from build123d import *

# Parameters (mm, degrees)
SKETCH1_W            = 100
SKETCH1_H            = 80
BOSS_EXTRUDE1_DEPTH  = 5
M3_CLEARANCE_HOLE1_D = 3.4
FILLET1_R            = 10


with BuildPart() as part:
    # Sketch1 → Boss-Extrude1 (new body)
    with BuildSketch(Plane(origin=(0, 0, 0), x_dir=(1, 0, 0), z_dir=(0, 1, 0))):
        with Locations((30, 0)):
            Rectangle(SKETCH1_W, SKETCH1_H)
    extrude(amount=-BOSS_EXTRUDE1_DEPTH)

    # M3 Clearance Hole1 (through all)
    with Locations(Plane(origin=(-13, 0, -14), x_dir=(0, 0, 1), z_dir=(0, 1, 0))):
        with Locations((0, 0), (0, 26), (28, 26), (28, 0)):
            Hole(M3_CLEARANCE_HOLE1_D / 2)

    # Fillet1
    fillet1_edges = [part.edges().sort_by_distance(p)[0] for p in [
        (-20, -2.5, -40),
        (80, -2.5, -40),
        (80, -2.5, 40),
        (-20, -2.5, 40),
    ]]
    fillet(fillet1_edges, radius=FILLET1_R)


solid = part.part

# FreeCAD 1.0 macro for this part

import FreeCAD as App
import Part
import Sketcher
Q = App.Units.Quantity


def edges_at(feature, points):
    """Names of the edges that pass closest to the given points."""
    edges = feature.Shape.Edges
    near = lambda p: min(range(len(edges)), key=lambda i: edges[i].distToShape(Part.Vertex(*p))[0])
    return sorted({f"Edge{near(p) + 1}" for p in points})

doc = App.newDocument("Part")
body = doc.addObject("PartDesign::Body", "Body")

# Sketch on XZ plane
sketch1 = body.newObject("Sketcher::SketchObject", "Sketch")
sketch1.AttachmentSupport = (doc.getObject("XZ_Plane"), [""])
sketch1.MapMode = "FlatFace"
sketch1.addGeometry([
    Part.LineSegment(App.Vector(-20, -40, 0), App.Vector(-20, 40, 0)),
    Part.LineSegment(App.Vector(-20, 40, 0), App.Vector(80, 40, 0)),
    Part.LineSegment(App.Vector(80, 40, 0), App.Vector(80, -40, 0)),
    Part.LineSegment(App.Vector(80, -40, 0), App.Vector(-20, -40, 0)),
], False)
sketch1.addConstraint([
    Sketcher.Constraint("Coincident", 0, 2, 1, 1),
    Sketcher.Constraint("Coincident", 1, 2, 2, 1),
    Sketcher.Constraint("Coincident", 2, 2, 3, 1),
    Sketcher.Constraint("Coincident", 3, 2, 0, 1),
    Sketcher.Constraint("Vertical", 0),
    Sketcher.Constraint("Horizontal", 1),
    Sketcher.Constraint("Vertical", 2),
    Sketcher.Constraint("Horizontal", 3),
    Sketcher.Constraint("DistanceX", 1, 1, 1, 2, Q("100 mm")),
    Sketcher.Constraint("DistanceY", 0, 1, 0, 2, Q("80 mm")),
    Sketcher.Constraint("DistanceX", 0, 2, -1, 1, Q("20 mm")),
    Sketcher.Constraint("DistanceY", -1, 1, 0, 2, Q("40 mm")),
])
pad1 = body.newObject("PartDesign::Pad", "Pad")
pad1.Profile = sketch1
pad1.Length = 5

# Sketch on XZ plane
sketch2 = body.newObject("Sketcher::SketchObject", "Sketch001")
sketch2.AttachmentSupport = (doc.getObject("XZ_Plane"), [""])
sketch2.MapMode = "FlatFace"
sketch2.addGeometry([
    Part.Circle(App.Vector(-13, -14, 0), App.Vector(0, 0, 1), 1.7),
    Part.Circle(App.Vector(13, -14, 0), App.Vector(0, 0, 1), 1.7),
    Part.Circle(App.Vector(13, 14, 0), App.Vector(0, 0, 1), 1.7),
    Part.Circle(App.Vector(-13, 14, 0), App.Vector(0, 0, 1), 1.7),
], False)
sketch2.addConstraint([
    Sketcher.Constraint("Equal", 0, 1),
    Sketcher.Constraint("Equal", 1, 2),
    Sketcher.Constraint("Equal", 2, 3),
    Sketcher.Constraint("Symmetric", 0, 3, 2, 3, -1, 1),
    Sketcher.Constraint("Symmetric", 1, 3, 3, 3, -1, 1),
    Sketcher.Constraint("Symmetric", 0, 3, 1, 3, -2),
    Sketcher.Constraint("Diameter", 0, Q("3.4 mm")),
    Sketcher.Constraint("DistanceX", 0, 3, -1, 1, Q("13 mm")),
    Sketcher.Constraint("DistanceY", 0, 3, -1, 1, Q("14 mm")),
])
doc.recompute()
hole = body.newObject("PartDesign::Hole", "Hole")
hole.Profile = sketch2
hole.ThreadType = "None"
hole.Diameter = 3.4
hole.DepthType = "ThroughAll"
hole.Reversed = True
doc.recompute()

fillet = body.newObject("PartDesign::Fillet", "Fillet")
fillet.Base = (hole, edges_at(hole, [
    (-20, -2.5, -40),
    (80, -2.5, -40),
    (80, -2.5, 40),
    (-20, -2.5, 40),
]))
fillet.Radius = 10

doc.recompute()
